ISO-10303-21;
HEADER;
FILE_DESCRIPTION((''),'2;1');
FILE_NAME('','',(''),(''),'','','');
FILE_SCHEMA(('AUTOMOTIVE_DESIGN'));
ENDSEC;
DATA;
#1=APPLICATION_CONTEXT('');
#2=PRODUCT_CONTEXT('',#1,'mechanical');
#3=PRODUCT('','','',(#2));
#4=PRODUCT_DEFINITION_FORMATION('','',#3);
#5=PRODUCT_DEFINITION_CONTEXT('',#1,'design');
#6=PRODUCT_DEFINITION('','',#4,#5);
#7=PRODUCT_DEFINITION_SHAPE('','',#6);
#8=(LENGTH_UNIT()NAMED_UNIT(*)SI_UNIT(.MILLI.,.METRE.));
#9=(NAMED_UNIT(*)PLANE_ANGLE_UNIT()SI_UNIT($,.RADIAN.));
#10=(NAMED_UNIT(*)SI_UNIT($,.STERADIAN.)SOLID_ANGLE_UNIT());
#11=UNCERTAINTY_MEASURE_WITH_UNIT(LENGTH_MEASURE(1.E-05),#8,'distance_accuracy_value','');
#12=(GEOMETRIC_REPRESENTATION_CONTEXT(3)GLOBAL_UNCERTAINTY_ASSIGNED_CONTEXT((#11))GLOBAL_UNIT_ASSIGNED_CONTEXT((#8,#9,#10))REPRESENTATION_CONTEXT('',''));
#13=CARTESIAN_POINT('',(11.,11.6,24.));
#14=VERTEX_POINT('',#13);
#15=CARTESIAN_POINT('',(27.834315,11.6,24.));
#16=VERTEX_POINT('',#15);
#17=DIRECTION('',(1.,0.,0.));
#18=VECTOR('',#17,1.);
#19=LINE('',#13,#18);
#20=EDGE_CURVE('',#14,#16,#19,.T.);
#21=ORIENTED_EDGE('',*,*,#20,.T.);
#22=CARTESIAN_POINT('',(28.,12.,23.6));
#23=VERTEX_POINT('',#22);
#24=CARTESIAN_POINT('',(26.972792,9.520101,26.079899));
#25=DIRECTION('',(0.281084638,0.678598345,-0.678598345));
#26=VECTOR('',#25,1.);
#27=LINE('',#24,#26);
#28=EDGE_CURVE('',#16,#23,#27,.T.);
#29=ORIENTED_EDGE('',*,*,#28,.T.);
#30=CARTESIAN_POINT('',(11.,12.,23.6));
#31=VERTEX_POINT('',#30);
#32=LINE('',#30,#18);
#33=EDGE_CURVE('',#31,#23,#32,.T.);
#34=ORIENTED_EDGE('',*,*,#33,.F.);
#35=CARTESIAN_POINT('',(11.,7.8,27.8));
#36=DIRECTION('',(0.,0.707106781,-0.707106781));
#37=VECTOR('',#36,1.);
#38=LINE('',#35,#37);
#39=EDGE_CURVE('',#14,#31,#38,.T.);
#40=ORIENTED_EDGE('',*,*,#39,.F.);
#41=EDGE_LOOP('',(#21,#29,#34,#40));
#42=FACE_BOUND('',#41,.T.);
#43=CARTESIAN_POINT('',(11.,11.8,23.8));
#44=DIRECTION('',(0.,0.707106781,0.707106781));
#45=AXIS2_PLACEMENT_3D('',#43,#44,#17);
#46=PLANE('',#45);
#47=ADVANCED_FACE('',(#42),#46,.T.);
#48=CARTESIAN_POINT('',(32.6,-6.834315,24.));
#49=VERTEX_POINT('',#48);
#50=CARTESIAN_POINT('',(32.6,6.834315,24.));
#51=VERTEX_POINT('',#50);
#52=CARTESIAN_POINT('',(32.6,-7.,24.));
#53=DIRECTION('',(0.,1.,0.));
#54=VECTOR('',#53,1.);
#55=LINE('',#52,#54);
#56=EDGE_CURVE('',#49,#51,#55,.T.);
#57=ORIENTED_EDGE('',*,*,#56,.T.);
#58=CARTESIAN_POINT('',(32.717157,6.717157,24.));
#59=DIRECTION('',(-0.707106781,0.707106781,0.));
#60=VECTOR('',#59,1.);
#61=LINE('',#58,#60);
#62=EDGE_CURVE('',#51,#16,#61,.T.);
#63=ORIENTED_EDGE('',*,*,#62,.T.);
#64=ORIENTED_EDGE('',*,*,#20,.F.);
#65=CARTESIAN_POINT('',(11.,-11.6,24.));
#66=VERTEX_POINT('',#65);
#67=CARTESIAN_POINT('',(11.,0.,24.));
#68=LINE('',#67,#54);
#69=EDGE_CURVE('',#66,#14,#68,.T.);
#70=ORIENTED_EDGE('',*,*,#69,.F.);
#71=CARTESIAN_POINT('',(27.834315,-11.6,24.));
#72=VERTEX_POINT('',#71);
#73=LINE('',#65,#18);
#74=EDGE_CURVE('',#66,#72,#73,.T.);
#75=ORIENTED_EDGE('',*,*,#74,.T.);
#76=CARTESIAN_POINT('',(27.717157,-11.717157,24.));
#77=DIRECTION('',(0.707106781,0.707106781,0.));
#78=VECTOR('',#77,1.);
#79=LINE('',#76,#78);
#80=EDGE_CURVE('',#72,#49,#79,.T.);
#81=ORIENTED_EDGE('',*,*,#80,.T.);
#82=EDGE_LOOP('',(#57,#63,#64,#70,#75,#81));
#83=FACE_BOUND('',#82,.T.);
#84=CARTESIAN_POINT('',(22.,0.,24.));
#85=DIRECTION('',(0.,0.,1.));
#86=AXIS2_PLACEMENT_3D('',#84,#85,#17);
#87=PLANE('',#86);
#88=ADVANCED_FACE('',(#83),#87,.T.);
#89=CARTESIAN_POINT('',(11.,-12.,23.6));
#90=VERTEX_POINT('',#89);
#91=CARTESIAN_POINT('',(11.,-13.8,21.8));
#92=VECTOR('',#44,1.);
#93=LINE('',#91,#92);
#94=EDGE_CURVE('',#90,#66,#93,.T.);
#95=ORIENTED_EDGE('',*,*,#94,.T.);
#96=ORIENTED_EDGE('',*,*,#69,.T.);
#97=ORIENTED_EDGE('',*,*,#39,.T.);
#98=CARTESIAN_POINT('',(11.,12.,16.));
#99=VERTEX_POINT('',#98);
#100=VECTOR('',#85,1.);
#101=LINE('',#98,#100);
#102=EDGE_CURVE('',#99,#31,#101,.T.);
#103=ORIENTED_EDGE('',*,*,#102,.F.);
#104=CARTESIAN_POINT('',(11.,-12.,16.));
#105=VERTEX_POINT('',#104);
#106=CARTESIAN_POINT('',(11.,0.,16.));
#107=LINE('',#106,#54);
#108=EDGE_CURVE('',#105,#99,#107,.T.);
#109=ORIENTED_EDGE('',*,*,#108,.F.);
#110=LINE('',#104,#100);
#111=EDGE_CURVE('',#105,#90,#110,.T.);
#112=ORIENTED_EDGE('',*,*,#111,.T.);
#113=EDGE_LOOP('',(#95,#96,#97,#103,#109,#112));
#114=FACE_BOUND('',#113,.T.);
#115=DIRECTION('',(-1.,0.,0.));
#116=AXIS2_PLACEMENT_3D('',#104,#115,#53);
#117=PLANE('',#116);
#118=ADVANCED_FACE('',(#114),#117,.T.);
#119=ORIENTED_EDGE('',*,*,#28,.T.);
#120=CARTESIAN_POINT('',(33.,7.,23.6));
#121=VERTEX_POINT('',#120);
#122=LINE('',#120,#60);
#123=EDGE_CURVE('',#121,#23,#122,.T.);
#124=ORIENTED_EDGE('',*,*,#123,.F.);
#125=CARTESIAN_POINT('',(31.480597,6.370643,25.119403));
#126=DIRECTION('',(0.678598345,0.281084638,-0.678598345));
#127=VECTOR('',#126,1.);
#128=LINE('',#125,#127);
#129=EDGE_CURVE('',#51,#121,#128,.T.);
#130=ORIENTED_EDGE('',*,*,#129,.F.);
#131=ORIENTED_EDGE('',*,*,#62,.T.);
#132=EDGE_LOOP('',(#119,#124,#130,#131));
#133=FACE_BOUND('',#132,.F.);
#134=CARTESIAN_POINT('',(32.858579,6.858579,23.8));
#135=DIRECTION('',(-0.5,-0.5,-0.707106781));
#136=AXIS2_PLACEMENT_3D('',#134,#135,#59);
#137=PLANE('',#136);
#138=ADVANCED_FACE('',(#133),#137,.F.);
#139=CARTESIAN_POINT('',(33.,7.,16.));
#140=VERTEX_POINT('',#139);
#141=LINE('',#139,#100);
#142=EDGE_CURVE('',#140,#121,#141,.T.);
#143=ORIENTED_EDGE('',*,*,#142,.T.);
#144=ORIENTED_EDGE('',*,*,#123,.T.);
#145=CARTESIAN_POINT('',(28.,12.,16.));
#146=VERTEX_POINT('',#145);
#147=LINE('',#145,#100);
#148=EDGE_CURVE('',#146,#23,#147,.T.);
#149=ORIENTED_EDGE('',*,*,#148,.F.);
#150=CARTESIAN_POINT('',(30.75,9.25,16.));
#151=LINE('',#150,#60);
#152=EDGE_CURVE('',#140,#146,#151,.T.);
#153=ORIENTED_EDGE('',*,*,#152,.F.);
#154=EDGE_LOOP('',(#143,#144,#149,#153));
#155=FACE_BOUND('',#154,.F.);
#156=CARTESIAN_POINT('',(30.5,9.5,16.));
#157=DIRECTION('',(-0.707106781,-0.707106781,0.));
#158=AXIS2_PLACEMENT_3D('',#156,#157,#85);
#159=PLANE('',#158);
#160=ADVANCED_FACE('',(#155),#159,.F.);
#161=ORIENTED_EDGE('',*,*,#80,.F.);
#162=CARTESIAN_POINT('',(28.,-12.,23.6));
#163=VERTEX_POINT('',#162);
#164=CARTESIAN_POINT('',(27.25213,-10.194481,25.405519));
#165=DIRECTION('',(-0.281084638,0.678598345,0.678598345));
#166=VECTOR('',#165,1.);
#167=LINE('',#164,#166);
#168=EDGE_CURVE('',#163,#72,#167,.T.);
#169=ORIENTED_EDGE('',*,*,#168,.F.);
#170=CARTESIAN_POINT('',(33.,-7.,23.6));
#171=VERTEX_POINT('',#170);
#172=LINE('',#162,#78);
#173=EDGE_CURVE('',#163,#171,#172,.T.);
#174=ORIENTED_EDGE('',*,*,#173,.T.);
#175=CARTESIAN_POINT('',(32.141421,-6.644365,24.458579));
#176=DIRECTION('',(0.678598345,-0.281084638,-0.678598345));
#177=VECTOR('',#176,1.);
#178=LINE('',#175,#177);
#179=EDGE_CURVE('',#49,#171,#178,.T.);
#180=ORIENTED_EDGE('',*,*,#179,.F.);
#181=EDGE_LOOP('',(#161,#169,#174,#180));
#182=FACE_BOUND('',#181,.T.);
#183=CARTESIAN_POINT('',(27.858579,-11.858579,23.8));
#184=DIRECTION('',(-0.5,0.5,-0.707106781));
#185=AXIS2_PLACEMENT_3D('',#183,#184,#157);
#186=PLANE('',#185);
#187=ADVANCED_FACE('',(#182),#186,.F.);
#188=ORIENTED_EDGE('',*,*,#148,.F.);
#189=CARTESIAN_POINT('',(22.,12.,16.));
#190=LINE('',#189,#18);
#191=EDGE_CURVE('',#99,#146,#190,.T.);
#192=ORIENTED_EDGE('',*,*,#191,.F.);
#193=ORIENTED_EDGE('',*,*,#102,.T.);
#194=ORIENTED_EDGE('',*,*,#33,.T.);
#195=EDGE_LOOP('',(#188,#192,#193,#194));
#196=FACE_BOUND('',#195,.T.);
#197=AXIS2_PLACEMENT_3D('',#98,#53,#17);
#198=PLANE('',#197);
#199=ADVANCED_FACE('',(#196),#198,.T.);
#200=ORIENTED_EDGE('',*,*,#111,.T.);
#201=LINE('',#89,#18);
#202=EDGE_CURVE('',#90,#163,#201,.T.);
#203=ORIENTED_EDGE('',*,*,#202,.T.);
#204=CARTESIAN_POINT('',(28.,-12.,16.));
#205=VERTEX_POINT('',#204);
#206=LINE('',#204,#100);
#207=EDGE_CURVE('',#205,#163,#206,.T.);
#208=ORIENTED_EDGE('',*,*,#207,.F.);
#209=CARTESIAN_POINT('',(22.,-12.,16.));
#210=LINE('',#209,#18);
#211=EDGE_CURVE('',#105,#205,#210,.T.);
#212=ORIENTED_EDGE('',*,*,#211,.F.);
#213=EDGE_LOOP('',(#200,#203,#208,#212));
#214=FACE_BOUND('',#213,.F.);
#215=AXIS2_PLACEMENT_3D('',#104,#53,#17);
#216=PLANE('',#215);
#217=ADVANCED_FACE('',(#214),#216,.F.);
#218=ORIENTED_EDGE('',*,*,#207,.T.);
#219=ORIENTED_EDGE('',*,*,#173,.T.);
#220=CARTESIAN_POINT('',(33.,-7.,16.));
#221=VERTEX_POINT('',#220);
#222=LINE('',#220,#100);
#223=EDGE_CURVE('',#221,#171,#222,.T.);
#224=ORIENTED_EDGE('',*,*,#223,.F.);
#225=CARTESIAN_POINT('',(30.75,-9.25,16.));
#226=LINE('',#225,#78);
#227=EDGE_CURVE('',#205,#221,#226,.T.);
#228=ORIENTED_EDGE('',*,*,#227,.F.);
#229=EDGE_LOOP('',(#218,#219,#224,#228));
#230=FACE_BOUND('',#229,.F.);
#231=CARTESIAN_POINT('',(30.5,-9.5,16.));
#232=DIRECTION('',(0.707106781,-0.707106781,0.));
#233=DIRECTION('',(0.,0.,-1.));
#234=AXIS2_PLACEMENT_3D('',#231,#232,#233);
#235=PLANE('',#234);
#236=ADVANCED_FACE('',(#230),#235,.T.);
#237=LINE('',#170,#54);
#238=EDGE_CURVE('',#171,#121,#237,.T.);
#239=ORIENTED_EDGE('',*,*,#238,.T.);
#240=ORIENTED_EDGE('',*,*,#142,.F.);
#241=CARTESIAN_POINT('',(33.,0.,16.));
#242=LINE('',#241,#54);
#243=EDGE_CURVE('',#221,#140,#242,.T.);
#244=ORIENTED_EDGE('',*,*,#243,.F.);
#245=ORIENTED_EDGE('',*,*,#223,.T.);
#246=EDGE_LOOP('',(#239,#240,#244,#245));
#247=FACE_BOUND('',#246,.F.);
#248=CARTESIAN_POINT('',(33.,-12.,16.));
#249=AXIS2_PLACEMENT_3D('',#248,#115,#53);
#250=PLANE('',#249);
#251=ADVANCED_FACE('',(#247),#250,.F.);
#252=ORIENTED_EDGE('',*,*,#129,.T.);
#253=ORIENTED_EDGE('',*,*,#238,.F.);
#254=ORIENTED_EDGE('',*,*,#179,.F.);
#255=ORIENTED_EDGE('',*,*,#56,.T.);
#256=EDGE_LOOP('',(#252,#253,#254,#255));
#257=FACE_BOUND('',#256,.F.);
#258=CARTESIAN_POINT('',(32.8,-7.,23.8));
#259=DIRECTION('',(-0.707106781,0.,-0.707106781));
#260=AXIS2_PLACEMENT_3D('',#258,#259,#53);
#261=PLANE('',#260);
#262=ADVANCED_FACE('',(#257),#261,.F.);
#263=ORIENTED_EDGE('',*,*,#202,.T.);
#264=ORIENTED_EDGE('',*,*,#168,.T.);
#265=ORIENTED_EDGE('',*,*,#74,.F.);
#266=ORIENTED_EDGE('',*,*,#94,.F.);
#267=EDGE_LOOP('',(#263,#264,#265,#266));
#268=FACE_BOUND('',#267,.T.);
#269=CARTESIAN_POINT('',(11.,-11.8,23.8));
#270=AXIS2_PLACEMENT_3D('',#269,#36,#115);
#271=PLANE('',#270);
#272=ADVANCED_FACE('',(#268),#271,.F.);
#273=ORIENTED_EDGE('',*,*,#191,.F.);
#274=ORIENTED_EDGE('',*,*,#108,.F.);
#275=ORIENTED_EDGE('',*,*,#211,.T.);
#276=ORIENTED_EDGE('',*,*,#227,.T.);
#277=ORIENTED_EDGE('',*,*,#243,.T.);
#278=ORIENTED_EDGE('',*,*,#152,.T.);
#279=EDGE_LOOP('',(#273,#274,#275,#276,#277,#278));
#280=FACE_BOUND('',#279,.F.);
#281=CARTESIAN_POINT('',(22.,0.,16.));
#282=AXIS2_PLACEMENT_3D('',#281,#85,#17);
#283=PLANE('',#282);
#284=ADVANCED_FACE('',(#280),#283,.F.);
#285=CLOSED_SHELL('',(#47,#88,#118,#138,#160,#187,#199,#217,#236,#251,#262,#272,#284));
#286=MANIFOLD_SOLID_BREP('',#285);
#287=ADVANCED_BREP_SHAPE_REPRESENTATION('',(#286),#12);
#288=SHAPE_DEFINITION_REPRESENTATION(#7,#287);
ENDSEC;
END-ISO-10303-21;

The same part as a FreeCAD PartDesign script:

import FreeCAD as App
import Part
import Sketcher

V = App.Vector
Q = App.Units.Quantity


def edges_at(feature, points):
    """Names of the edges that pass closest to the given points."""
    edges = feature.Shape.Edges
    near = lambda p: min(range(len(edges)), key=lambda i: edges[i].distToShape(Part.Vertex(*p))[0])
    return sorted({f"Edge{near(p) + 1}" for p in points})

doc = App.newDocument("Part")
body = doc.addObject("PartDesign::Body", "Body")

sketch1 = body.newObject("Sketcher::SketchObject", "Sketch")
sketch1.AttachmentSupport = (doc.getObject("XY_Plane"), [""])
sketch1.MapMode = "FlatFace"
sketch1.AttachmentOffset = App.Placement(V(0, 0, 16), App.Rotation())
sketch1.addGeometry([
    Part.LineSegment(V(11, 12, 0), V(11, -12, 0)),
    Part.LineSegment(V(11, -12, 0), V(33, -12, 0)),
    Part.LineSegment(V(33, -12, 0), V(33, 12, 0)),
    Part.LineSegment(V(33, 12, 0), V(11, 12, 0)),
], False)
sketch1.addConstraint([
    Sketcher.Constraint("Coincident", 0, 2, 1, 1),
    Sketcher.Constraint("Coincident", 1, 2, 2, 1),
    Sketcher.Constraint("Coincident", 2, 2, 3, 1),
    Sketcher.Constraint("Coincident", 3, 2, 0, 1),
    Sketcher.Constraint("Vertical", 0),
    Sketcher.Constraint("Horizontal", 1),
    Sketcher.Constraint("Vertical", 2),
    Sketcher.Constraint("Horizontal", 3),
    Sketcher.Constraint("DistanceX", 1, 1, 1, 2, Q("22 mm")),
    Sketcher.Constraint("DistanceY", 0, 2, 0, 1, Q("24 mm")),
    Sketcher.Constraint("DistanceX", -1, 1, 0, 2, Q("11 mm")),
    Sketcher.Constraint("DistanceY", 0, 2, -1, 1, Q("12 mm")),
])
pad1 = body.newObject("PartDesign::Pad", "Pad")
pad1.Profile = sketch1
pad1.Length = 8
doc.recompute()

chamfer = body.newObject("PartDesign::Chamfer", "Chamfer")
chamfer.Base = (pad1, edges_at(pad1, [(33, -12, 20), (33, 12, 20)]))
chamfer.Size = 5
doc.recompute()

chamfer2 = body.newObject("PartDesign::Chamfer", "Chamfer001")
chamfer2.Base = (chamfer, edges_at(chamfer, [
    (33, 0, 24),
    (19.5, 12, 24),
    (19.5, -12, 24),
    (30.5, -9.5, 24),
    (30.5, 9.5, 24),
]))
chamfer2.Size = 0.4

doc.recompute()
